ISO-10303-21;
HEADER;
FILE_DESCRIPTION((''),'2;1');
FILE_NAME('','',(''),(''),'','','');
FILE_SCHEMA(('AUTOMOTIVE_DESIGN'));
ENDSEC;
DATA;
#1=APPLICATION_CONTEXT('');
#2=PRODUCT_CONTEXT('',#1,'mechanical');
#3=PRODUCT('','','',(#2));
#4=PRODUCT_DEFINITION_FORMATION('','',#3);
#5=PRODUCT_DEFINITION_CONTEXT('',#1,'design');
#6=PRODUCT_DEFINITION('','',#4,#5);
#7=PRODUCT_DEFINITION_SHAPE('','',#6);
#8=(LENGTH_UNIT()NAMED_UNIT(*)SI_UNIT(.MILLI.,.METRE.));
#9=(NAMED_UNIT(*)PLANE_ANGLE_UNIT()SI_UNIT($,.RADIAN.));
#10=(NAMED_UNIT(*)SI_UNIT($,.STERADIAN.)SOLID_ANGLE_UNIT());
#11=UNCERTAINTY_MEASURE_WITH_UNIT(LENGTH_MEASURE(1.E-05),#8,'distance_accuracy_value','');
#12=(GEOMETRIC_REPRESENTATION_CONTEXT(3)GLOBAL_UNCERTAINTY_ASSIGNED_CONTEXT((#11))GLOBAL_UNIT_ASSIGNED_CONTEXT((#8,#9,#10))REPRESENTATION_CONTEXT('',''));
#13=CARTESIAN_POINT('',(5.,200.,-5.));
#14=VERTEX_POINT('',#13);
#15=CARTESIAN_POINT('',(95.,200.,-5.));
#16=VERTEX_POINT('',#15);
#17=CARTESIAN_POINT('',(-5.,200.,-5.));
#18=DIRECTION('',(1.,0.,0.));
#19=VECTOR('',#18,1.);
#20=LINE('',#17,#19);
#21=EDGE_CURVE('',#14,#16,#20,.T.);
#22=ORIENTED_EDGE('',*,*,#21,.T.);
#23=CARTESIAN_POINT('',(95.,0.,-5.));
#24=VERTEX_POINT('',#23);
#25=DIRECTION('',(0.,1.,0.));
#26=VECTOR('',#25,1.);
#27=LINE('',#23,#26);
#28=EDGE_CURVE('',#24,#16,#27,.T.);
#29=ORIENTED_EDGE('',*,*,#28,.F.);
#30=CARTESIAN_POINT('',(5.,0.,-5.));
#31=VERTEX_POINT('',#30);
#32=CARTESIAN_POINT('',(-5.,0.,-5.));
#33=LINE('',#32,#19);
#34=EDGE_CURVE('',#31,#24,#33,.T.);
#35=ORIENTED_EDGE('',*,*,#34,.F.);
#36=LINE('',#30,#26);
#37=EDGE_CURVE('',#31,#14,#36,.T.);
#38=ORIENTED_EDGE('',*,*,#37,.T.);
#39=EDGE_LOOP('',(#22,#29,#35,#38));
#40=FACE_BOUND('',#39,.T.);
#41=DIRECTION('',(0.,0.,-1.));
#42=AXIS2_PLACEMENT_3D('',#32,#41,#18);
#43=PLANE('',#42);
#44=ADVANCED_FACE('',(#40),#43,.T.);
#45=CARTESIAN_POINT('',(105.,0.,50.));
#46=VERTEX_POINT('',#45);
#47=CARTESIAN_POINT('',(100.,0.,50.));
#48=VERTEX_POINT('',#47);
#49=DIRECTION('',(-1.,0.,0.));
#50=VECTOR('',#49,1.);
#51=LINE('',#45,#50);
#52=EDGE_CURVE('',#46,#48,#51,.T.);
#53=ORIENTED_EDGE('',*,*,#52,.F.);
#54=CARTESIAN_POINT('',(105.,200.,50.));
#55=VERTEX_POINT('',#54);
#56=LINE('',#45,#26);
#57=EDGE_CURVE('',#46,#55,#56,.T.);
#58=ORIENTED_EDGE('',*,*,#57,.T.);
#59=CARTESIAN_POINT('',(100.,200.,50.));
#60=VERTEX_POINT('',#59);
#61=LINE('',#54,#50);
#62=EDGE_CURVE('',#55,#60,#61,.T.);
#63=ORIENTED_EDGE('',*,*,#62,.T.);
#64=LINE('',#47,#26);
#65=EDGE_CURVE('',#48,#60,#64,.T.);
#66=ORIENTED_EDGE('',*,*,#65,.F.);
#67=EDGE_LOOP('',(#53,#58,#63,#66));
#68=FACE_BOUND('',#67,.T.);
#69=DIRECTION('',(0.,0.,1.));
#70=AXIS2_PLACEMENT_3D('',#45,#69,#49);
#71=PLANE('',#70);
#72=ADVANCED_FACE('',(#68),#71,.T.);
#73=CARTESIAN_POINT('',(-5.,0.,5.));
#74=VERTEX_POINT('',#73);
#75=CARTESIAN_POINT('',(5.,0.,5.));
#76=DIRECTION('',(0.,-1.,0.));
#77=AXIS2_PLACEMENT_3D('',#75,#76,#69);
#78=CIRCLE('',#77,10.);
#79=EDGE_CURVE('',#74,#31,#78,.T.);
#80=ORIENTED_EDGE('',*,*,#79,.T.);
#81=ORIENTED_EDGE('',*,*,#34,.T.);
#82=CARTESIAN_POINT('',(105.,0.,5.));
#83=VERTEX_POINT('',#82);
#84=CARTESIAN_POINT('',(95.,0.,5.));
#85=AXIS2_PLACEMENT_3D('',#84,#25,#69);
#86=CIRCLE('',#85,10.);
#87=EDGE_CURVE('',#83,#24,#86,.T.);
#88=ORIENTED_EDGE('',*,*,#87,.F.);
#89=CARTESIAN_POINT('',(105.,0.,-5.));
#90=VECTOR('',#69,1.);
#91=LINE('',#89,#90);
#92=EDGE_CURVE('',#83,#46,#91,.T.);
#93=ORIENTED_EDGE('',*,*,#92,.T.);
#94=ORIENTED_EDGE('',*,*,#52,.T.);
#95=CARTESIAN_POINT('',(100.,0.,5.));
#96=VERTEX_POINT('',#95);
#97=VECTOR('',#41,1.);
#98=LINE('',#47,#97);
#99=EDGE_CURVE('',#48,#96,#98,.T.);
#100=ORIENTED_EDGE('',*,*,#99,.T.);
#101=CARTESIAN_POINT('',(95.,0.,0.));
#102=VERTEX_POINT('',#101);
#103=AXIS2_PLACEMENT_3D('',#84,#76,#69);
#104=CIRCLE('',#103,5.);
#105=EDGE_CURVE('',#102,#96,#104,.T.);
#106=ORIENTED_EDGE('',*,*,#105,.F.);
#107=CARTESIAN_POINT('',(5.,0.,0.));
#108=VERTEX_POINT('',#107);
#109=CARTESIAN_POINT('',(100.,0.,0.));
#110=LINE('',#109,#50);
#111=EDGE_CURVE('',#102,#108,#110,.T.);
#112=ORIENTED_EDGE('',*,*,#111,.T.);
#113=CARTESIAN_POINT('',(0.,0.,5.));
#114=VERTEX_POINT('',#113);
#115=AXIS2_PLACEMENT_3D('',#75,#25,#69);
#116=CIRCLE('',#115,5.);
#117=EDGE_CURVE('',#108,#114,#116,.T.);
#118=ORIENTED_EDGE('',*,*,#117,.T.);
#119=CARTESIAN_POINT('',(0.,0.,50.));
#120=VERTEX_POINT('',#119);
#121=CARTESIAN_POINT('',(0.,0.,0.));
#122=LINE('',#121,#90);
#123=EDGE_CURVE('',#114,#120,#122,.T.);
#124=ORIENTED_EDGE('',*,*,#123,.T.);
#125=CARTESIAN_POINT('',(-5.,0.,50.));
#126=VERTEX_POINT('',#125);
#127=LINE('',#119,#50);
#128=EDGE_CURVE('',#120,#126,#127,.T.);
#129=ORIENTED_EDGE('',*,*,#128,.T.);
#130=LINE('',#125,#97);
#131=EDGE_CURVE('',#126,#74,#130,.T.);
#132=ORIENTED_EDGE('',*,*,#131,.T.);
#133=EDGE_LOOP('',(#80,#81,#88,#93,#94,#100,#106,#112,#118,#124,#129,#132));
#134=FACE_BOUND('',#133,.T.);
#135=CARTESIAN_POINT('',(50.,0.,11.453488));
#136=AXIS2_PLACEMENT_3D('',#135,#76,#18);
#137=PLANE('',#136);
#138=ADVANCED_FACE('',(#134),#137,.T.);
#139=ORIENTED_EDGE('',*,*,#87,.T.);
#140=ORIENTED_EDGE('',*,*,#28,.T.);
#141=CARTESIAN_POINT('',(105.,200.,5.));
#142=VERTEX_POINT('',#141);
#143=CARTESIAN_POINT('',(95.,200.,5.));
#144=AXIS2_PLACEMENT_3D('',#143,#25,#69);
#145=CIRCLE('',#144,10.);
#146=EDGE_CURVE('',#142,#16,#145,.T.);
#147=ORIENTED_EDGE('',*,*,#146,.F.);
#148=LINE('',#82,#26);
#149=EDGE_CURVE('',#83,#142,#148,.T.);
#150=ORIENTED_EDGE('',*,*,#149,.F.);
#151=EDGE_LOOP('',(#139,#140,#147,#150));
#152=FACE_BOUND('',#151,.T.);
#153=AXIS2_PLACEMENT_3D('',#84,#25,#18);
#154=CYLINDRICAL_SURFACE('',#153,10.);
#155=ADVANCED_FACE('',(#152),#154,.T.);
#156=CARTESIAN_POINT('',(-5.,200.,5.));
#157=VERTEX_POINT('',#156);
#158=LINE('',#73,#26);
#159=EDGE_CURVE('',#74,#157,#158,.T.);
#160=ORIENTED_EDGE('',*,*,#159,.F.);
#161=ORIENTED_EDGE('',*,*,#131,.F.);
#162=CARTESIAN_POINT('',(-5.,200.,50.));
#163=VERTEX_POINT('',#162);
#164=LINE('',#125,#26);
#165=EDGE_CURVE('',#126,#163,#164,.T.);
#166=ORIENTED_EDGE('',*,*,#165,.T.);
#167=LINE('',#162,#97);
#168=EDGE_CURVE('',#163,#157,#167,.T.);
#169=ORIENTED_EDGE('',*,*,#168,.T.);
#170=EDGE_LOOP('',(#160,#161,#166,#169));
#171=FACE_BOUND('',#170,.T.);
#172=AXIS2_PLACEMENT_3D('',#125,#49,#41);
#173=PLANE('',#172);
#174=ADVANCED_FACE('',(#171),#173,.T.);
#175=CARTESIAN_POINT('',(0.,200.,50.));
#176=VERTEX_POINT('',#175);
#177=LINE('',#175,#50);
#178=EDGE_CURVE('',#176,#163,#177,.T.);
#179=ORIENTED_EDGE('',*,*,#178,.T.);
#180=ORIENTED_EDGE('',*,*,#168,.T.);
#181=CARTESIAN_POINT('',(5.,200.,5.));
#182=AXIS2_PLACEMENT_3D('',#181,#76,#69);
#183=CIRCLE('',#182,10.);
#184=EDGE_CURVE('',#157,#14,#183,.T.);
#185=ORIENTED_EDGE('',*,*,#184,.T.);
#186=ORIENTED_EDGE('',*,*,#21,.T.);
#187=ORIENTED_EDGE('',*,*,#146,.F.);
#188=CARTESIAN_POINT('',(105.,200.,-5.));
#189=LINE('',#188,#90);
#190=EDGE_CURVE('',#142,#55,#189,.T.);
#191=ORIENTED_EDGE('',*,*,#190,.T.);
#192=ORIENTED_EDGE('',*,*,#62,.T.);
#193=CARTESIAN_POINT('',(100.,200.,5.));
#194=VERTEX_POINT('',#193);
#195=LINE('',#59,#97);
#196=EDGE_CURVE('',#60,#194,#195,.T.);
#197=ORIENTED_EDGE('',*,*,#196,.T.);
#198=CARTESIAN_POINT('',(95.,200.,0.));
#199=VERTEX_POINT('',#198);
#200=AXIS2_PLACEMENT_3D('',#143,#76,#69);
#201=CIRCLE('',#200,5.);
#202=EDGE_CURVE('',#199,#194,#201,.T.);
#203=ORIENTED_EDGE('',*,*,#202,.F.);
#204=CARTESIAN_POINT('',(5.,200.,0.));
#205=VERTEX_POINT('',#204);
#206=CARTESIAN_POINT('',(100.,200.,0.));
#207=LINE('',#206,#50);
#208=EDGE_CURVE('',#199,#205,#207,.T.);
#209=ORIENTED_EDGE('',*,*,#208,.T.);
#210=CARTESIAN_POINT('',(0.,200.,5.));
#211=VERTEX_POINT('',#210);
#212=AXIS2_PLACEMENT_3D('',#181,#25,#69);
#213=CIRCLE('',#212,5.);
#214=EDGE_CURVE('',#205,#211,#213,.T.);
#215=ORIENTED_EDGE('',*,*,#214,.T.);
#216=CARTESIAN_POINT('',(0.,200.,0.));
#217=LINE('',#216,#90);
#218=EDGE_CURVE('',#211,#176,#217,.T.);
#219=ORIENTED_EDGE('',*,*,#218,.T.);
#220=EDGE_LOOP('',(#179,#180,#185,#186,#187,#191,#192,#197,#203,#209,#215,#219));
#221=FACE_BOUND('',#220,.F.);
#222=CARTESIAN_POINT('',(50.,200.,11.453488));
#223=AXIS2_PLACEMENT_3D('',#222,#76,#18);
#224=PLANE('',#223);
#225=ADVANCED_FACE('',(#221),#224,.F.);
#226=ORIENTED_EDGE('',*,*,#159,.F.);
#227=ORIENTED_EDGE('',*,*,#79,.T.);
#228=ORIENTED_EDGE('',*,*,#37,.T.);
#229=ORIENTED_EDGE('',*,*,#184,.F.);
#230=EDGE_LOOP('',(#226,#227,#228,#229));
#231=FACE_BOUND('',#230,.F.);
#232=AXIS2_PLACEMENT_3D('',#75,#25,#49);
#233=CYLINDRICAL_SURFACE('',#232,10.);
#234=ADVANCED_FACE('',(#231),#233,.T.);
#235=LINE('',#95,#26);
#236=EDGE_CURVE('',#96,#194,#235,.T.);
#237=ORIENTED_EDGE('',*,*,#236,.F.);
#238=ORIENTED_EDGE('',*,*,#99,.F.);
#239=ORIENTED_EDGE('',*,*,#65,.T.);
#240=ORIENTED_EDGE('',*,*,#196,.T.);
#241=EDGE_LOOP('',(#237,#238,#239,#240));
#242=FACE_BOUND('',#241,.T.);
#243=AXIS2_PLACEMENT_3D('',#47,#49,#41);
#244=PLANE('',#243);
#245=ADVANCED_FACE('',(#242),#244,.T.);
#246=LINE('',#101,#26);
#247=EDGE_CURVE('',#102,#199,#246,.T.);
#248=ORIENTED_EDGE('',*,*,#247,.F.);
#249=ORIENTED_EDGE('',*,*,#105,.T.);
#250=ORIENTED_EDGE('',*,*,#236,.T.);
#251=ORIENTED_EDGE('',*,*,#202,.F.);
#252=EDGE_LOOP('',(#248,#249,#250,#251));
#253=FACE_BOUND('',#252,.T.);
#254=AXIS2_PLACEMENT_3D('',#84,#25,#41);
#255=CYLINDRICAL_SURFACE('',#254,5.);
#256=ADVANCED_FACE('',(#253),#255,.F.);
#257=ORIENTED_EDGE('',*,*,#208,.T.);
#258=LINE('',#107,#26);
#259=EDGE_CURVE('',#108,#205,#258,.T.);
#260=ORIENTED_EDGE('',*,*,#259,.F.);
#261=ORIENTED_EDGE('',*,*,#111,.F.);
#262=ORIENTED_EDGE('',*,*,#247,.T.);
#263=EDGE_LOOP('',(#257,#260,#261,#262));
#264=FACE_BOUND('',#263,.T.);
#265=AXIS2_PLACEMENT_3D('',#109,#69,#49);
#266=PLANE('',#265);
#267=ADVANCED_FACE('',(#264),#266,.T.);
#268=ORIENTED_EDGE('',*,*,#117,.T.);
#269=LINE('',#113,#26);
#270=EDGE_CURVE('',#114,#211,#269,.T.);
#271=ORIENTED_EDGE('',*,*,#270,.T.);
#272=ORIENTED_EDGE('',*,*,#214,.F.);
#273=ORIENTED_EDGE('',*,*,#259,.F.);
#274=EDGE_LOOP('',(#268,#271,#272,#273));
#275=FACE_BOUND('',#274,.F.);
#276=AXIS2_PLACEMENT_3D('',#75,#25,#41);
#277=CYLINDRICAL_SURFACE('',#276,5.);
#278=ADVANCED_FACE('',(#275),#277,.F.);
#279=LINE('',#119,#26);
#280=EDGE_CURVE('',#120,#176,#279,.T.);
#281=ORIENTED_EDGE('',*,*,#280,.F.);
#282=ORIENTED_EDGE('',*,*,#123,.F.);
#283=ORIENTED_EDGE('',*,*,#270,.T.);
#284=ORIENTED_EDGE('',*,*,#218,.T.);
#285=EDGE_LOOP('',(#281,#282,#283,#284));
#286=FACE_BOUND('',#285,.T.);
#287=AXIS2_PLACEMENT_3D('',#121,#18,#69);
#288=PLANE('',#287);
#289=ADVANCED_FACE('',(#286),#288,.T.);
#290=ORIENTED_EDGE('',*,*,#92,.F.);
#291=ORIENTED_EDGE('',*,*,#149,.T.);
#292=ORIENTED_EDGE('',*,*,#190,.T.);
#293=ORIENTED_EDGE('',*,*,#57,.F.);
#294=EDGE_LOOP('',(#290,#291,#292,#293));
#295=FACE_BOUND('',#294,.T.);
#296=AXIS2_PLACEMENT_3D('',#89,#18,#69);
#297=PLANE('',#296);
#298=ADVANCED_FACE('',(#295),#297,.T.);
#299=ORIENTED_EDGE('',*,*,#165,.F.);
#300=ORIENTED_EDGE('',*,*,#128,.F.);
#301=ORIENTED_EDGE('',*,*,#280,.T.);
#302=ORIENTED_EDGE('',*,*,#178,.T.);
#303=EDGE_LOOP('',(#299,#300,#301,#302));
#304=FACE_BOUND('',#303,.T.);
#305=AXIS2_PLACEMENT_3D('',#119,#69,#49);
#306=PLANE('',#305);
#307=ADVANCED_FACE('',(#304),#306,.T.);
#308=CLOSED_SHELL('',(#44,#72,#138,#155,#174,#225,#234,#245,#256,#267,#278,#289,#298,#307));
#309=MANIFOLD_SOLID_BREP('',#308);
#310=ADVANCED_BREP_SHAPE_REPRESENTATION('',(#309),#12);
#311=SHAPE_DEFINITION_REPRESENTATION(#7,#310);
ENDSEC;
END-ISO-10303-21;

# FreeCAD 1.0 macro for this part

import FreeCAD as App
import Part
import Sketcher

V = App.Vector
Q = App.Units.Quantity


def edges_at(feature, points):
    """Names of the edges that pass closest to the given points."""
    edges = feature.Shape.Edges
    near = lambda p: min(range(len(edges)), key=lambda i: edges[i].distToShape(Part.Vertex(*p))[0])
    return sorted({f"Edge{near(p) + 1}" for p in points})

doc = App.newDocument("Part")
params = doc.addObject("Spreadsheet::Sheet", "Params")
for row, (alias, value) in enumerate([
    ("sketch1_width", "100 mm"),
    ("sketch1_width2", "5 mm"),
    ("sketch1_height", "50 mm"),
    ("sketch1_height2", "55 mm"),
    ("pad1_length", "200 mm"),
    ("fillet_radius", "5 mm"),
    ("fillet2_radius", "10 mm"),
], start=1):
    params.set(f"A{row}", alias)
    params.set(f"B{row}", "=" + value)
    params.setAlias(f"B{row}", alias)

body = doc.addObject("PartDesign::Body", "Body")

# Sketch on XZ plane
sketch1 = doc.addObject("Sketcher::SketchObject", "Sketch")
body.addObject(sketch1)
sketch1.AttachmentSupport = (doc.XZ_Plane, [""])
sketch1.MapMode = "FlatFace"
sketch1.addGeometry([
    Part.LineSegment(V(100, 0, 0), V(0, 0, 0)),  # 0
    Part.LineSegment(V(0, 0, 0), V(0, 50, 0)),  # 1
    Part.LineSegment(V(0, 50, 0), V(-5, 50, 0)),  # 2
    Part.LineSegment(V(-5, 50, 0), V(-5, -5, 0)),  # 3
    Part.LineSegment(V(-5, -5, 0), V(105, -5, 0)),  # 4
    Part.LineSegment(V(105, -5, 0), V(105, 50, 0)),  # 5
    Part.LineSegment(V(105, 50, 0), V(100, 50, 0)),  # 6
    Part.LineSegment(V(100, 50, 0), V(100, 0, 0)),  # 7
], False)
sketch1.addConstraint([
    Sketcher.Constraint("Coincident", 0, 2, 1, 1),
    Sketcher.Constraint("Coincident", 1, 2, 2, 1),
    Sketcher.Constraint("Coincident", 2, 2, 3, 1),
    Sketcher.Constraint("Coincident", 3, 2, 4, 1),
    Sketcher.Constraint("Coincident", 4, 2, 5, 1),
    Sketcher.Constraint("Coincident", 5, 2, 6, 1),
    Sketcher.Constraint("Coincident", 6, 2, 7, 1),
    Sketcher.Constraint("Coincident", 7, 2, 0, 1),
    Sketcher.Constraint("Horizontal", 0),
    Sketcher.Constraint("Vertical", 1),
    Sketcher.Constraint("Horizontal", 2),
    Sketcher.Constraint("Vertical", 3),
    Sketcher.Constraint("Horizontal", 4),
    Sketcher.Constraint("Vertical", 5),
    Sketcher.Constraint("Horizontal", 6),
    Sketcher.Constraint("Vertical", 7),
    Sketcher.Constraint("Coincident", 0, 2, -1, 1),
    Sketcher.Constraint("Horizontal", 2, 2, 5, 2),
    Sketcher.Constraint("Equal", 2, 6),
    Sketcher.Constraint("DistanceX", 0, 2, 0, 1, Q("100 mm")),
    Sketcher.Constraint("DistanceX", 2, 2, 2, 1, Q("5 mm")),
    Sketcher.Constraint("DistanceY", 1, 1, 1, 2, Q("50 mm")),
    Sketcher.Constraint("DistanceY", 3, 2, 3, 1, Q("55 mm")),
])
sketch1.setExpression("Constraints[19]", "Params.sketch1_width")
sketch1.setExpression("Constraints[20]", "Params.sketch1_width2")
sketch1.setExpression("Constraints[21]", "Params.sketch1_height")
sketch1.setExpression("Constraints[22]", "Params.sketch1_height2")
pad1 = doc.addObject("PartDesign::Pad", "Pad")
body.addObject(pad1)
pad1.Profile = sketch1
pad1.setExpression("Length", "Params.pad1_length")
pad1.Reversed = True
doc.recompute()

fillet = doc.addObject("PartDesign::Fillet", "Fillet")
body.addObject(fillet)
fillet.Base = (pad1, edges_at(pad1, [(0, 100, 0), (100, 100, 0)]))
fillet.setExpression("Radius", "Params.fillet_radius")
doc.recompute()

fillet2 = doc.addObject("PartDesign::Fillet", "Fillet001")
body.addObject(fillet2)
fillet2.Base = (fillet, edges_at(fillet, [(105, 100, -5), (-5, 100, -5)]))
fillet2.setExpression("Radius", "Params.fillet2_radius")

doc.recompute()
